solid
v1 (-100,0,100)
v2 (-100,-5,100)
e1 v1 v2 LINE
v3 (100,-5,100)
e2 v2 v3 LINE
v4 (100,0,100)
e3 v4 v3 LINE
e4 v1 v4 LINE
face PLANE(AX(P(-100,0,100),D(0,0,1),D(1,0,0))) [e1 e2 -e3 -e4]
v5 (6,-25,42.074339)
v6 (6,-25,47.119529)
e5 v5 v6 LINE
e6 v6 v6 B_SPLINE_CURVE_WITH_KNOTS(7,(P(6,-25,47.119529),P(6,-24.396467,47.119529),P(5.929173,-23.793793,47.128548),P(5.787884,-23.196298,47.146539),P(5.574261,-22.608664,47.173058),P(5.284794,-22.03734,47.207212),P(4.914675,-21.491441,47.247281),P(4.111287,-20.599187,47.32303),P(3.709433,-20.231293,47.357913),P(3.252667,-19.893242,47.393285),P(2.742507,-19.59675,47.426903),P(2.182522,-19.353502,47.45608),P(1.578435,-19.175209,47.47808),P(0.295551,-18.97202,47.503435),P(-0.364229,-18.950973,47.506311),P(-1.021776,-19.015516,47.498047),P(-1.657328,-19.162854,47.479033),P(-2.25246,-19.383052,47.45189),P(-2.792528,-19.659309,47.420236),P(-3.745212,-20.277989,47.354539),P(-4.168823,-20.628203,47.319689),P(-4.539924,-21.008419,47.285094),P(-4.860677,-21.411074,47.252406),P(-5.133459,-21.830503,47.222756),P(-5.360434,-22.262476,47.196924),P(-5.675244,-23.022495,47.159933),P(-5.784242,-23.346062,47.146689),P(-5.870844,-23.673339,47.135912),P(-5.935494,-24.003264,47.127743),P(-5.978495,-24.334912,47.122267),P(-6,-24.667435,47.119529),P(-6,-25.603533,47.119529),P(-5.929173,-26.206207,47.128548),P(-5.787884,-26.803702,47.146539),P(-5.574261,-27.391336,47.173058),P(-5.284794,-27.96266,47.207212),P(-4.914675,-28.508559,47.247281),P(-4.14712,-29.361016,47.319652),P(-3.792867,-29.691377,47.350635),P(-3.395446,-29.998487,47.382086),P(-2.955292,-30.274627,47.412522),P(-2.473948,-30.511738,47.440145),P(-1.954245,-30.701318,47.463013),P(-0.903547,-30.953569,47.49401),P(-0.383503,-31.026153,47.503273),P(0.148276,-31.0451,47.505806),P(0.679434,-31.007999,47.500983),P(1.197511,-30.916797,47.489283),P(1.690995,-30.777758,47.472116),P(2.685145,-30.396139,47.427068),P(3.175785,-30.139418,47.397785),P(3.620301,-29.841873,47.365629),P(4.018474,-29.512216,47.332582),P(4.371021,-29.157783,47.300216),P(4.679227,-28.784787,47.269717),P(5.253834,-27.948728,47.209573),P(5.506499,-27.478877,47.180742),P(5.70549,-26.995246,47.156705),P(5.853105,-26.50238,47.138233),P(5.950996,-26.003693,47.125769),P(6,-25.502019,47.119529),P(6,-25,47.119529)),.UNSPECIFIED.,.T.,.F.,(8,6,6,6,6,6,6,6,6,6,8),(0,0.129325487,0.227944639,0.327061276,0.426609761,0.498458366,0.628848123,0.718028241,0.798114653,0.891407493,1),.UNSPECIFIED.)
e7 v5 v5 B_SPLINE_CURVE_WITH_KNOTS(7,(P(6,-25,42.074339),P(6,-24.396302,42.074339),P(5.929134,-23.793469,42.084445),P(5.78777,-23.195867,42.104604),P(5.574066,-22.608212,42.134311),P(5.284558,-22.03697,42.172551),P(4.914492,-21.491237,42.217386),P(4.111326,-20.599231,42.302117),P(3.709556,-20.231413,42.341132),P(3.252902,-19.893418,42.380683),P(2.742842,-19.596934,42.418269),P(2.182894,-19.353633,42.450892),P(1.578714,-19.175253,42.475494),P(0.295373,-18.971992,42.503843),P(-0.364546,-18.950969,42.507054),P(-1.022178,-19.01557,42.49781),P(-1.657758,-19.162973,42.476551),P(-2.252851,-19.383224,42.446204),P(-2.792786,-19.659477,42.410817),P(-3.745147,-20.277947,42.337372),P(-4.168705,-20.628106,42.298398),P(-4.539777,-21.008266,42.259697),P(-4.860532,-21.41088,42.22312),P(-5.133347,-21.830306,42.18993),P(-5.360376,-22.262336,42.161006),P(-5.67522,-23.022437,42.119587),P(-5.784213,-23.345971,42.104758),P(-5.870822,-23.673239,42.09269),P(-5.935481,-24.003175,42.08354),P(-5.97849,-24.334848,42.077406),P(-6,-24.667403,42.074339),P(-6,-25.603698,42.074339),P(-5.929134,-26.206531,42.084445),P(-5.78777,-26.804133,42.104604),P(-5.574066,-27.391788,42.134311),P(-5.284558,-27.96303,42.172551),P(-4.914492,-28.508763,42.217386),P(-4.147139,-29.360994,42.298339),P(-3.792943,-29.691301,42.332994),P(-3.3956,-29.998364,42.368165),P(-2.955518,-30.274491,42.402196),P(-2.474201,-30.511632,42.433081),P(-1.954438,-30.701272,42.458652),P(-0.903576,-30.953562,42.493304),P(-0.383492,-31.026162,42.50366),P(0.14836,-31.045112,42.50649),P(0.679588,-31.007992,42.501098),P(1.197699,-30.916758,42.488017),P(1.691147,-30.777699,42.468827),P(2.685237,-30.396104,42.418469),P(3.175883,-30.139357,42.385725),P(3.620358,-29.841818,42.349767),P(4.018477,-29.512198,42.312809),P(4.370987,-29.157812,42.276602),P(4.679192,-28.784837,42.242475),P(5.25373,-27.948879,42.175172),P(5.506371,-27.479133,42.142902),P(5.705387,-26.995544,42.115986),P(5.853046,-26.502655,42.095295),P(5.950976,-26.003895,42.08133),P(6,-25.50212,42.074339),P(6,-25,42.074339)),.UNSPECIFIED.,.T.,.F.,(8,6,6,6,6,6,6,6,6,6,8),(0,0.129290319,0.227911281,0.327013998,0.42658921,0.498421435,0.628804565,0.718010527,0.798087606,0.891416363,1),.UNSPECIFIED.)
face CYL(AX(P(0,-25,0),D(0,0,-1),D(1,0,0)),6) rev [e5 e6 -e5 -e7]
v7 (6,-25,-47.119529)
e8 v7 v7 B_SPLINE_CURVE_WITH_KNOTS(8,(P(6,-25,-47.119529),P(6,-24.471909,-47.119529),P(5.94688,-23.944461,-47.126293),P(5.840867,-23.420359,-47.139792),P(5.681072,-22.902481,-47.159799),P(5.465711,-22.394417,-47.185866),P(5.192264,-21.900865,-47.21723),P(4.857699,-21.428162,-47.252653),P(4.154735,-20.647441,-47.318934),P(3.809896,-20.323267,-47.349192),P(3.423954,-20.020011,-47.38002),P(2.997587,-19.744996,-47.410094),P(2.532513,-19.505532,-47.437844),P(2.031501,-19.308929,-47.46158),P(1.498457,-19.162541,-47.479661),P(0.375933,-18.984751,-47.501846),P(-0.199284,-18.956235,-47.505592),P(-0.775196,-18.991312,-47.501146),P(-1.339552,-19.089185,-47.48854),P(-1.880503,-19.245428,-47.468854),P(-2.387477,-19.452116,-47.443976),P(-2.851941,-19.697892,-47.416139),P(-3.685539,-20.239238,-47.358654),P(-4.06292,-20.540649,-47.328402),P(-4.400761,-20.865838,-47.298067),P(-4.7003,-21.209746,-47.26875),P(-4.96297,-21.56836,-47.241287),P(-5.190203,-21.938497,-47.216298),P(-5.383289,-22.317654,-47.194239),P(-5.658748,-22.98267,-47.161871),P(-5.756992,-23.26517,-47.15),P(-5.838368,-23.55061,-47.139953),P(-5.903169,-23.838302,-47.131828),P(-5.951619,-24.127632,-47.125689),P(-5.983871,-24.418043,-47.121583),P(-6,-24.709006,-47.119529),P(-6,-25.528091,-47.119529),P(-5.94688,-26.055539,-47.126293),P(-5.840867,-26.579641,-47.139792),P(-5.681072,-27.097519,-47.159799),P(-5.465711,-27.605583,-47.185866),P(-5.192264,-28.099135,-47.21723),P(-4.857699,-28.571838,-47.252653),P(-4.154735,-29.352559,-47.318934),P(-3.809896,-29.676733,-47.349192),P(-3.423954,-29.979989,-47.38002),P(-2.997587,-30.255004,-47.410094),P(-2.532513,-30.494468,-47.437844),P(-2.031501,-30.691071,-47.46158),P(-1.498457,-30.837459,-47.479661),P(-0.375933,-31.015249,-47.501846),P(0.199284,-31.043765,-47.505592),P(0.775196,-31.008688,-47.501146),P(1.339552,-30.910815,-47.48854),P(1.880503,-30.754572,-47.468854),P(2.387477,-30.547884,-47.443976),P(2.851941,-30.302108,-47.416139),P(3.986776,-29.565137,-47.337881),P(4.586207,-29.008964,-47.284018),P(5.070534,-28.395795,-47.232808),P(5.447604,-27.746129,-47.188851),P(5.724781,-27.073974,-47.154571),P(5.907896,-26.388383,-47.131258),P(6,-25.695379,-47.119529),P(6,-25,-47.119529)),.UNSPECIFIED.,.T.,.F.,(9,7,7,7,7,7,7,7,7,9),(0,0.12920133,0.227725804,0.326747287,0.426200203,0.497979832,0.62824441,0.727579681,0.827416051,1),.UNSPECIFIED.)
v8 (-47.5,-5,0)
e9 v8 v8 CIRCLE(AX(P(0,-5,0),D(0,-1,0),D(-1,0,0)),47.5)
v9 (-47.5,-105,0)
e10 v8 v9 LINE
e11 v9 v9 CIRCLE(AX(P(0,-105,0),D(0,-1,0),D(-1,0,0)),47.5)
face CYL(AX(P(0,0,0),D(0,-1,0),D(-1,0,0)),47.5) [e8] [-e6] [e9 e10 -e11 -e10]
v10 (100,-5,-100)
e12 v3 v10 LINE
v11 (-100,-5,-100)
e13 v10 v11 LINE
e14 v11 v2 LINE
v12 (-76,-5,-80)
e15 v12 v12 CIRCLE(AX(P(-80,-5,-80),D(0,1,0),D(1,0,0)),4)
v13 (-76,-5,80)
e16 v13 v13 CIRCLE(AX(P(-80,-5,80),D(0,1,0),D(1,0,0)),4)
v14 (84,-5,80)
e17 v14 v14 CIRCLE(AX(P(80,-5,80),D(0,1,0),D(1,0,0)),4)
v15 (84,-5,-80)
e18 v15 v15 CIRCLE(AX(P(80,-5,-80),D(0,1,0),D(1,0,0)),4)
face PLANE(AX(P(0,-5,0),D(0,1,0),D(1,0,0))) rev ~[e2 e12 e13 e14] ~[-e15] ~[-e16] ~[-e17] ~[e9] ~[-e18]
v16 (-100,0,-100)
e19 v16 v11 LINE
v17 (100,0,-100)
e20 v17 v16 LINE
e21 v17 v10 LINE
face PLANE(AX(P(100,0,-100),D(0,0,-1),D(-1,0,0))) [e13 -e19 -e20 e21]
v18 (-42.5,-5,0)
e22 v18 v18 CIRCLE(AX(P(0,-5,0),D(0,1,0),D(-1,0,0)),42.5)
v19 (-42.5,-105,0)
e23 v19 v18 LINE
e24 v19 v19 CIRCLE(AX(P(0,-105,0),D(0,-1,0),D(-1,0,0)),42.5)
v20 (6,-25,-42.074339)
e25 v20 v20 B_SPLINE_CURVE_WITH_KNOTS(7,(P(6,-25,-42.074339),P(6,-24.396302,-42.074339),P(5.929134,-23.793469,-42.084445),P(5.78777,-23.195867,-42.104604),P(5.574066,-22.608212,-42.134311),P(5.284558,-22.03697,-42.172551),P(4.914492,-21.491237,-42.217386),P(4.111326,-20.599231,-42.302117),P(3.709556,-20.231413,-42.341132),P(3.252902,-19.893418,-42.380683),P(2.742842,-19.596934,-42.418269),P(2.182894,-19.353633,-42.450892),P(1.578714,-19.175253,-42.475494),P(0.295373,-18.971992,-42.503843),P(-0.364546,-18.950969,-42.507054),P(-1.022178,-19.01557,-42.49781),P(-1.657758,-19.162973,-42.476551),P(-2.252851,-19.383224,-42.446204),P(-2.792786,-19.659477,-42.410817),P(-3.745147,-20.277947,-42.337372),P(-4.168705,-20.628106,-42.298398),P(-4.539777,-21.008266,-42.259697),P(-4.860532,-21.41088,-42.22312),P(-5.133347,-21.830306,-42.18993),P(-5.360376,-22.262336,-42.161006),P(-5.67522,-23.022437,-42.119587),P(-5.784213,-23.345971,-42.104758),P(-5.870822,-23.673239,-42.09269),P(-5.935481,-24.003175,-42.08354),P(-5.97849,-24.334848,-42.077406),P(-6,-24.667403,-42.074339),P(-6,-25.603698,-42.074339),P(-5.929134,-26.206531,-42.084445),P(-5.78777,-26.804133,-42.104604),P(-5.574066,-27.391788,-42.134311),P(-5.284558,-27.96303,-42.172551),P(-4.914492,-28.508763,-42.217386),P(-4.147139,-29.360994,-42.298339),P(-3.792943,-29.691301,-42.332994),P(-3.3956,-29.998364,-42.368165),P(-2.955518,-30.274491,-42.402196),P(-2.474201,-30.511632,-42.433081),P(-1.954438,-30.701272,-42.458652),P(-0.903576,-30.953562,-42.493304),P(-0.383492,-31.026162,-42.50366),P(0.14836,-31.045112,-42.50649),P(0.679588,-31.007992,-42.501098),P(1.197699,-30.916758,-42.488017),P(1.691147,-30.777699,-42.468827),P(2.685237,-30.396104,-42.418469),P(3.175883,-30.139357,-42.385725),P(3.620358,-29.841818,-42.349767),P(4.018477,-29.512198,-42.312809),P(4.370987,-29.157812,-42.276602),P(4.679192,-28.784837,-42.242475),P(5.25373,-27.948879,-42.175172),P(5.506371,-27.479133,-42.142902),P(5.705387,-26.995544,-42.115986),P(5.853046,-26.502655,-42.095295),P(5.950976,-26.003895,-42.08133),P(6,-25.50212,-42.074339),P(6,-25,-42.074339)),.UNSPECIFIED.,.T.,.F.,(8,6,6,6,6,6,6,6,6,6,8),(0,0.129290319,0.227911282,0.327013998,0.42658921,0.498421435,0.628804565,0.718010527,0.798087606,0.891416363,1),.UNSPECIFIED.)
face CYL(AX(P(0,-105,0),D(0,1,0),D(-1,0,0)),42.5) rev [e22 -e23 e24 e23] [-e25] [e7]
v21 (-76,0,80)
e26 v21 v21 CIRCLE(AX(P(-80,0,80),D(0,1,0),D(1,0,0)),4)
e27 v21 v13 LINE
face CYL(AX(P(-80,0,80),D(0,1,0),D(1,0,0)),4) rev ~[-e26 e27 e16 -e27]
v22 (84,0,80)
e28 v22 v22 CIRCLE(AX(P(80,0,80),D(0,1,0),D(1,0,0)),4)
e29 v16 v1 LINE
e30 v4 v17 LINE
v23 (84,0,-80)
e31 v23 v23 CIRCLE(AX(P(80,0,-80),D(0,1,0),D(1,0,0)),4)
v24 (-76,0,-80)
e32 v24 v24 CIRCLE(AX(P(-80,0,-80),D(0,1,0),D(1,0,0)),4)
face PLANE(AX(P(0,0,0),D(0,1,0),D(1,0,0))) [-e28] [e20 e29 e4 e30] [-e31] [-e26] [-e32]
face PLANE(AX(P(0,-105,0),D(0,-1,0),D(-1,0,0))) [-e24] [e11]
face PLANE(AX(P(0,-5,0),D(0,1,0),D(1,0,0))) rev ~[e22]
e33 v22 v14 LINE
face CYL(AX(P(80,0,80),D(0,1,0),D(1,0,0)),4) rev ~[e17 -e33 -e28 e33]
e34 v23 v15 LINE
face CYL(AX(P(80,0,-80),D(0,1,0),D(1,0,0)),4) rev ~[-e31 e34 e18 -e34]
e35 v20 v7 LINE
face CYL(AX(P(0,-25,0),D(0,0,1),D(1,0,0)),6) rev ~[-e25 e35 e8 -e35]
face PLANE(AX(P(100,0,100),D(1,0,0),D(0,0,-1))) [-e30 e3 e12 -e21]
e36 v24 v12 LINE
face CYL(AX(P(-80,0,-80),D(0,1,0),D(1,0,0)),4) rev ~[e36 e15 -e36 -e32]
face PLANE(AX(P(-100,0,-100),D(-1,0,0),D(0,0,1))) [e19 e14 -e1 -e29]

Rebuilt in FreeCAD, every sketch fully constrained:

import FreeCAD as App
import Part
import Sketcher


def add_polygon(sketch, points):
    """Adds a closed chain of lines whose ends are joined by coincident constraints."""
    first, n = sketch.GeometryCount, len(points)
    for a, b in zip(points, points[1:] + points[:1]):
        sketch.addGeometry(Part.LineSegment(App.Vector(*a, 0), App.Vector(*b, 0)), False)
    for i in range(n):
        sketch.addConstraint(Sketcher.Constraint("Coincident", first + i, 2, first + (i + 1) % n, 1))

doc = App.newDocument("Part")
body = doc.addObject("PartDesign::Body", "Body")

sketch1 = doc.addObject("Sketcher::SketchObject", "Sketch")
body.addObject(sketch1)
sketch1.AttachmentSupport = (doc.XY_Plane, [""])
sketch1.MapMode = "FlatFace"
add_polygon(sketch1, [(-42, -105), (-42, 0), (-48, 0), (-48, -105)])
sketch1.addConstraint(Sketcher.Constraint("Vertical", 0))
sketch1.addConstraint(Sketcher.Constraint("Horizontal", 1))
sketch1.addConstraint(Sketcher.Constraint("Vertical", 2))
sketch1.addConstraint(Sketcher.Constraint("Horizontal", 3))
sketch1.addConstraint(Sketcher.Constraint("PointOnObject", 0, 2, -1))
sketch1.addConstraint(Sketcher.Constraint("DistanceX", 1, 2, 1, 1, 5.0))
sketch1.addConstraint(Sketcher.Constraint("DistanceY", 0, 1, 0, 2, 105.0))
sketch1.addConstraint(Sketcher.Constraint("DistanceX", 1, 2, -1, 1, 47.5))
revolution = doc.addObject("PartDesign::Revolution", "Revolution")
body.addObject(revolution)
revolution.Profile = sketch1
revolution.ReferenceAxis = (sketch1, ["V_Axis"])
revolution.Angle = 360

sketch2 = doc.addObject("Sketcher::SketchObject", "Sketch001")
body.addObject(sketch2)
sketch2.AttachmentSupport = (doc.XZ_Plane, [""])
sketch2.MapMode = "FlatFace"
add_polygon(sketch2, [(100, 100), (100, -100), (-100, -100), (-100, 100)])
sketch2.addGeometry(Part.Circle(App.Vector(-80, 80, 0), App.Vector(0, 0, 1), 4), False)
sketch2.addGeometry(Part.Circle(App.Vector(80, 80, 0), App.Vector(0, 0, 1), 4), False)
sketch2.addGeometry(Part.Circle(App.Vector(-80, -80, 0), App.Vector(0, 0, 1), 4), False)
sketch2.addGeometry(Part.Circle(App.Vector(80, -80, 0), App.Vector(0, 0, 1), 4), False)
sketch2.addConstraint(Sketcher.Constraint("Vertical", 0))
sketch2.addConstraint(Sketcher.Constraint("Horizontal", 1))
sketch2.addConstraint(Sketcher.Constraint("Vertical", 2))
sketch2.addConstraint(Sketcher.Constraint("Horizontal", 3))
sketch2.addConstraint(Sketcher.Constraint("Equal", 4, 5))
sketch2.addConstraint(Sketcher.Constraint("Equal", 5, 6))
sketch2.addConstraint(Sketcher.Constraint("Equal", 6, 7))
sketch2.addConstraint(Sketcher.Constraint("Symmetric", 5, 3, 6, 3, -1, 1))
sketch2.addConstraint(Sketcher.Constraint("Symmetric", 4, 3, 7, 3, -1, 1))
sketch2.addConstraint(Sketcher.Constraint("Symmetric", 0, 2, 2, 2, -1, 1))
sketch2.addConstraint(Sketcher.Constraint("Symmetric", 4, 3, 5, 3, -2))
sketch2.addConstraint(Sketcher.Constraint("Equal", 3, 0))
sketch2.addConstraint(Sketcher.Constraint("Diameter", 4, 8.0))
sketch2.addConstraint(Sketcher.Constraint("DistanceX", 1, 2, 1, 1, 200.0))
sketch2.addConstraint(Sketcher.Constraint("DistanceX", 7, 3, 0, 2, 20.0))
sketch2.addConstraint(Sketcher.Constraint("DistanceY", 0, 2, 7, 3, 20.0))
pad1 = doc.addObject("PartDesign::Pad", "Pad")
body.addObject(pad1)
pad1.Profile = sketch2
pad1.Length = 5

sketch3 = doc.addObject("Sketcher::SketchObject", "Sketch002")
body.addObject(sketch3)
sketch3.AttachmentSupport = (doc.XY_Plane, [""])
sketch3.MapMode = "FlatFace"
sketch3.addGeometry(Part.Circle(App.Vector(0, -25, 0), App.Vector(0, 0, 1), 6), False)
sketch3.addConstraint(Sketcher.Constraint("PointOnObject", 0, 3, -2))
sketch3.addConstraint(Sketcher.Constraint("Diameter", 0, 12.0))
sketch3.addConstraint(Sketcher.Constraint("DistanceY", 0, 3, -1, 1, 25.0))
pocket1 = doc.addObject("PartDesign::Pocket", "Pocket")
body.addObject(pocket1)
pocket1.Profile = sketch3
pocket1.Type = "ThroughAll"
pocket1.Midplane = True

doc.recompute()
